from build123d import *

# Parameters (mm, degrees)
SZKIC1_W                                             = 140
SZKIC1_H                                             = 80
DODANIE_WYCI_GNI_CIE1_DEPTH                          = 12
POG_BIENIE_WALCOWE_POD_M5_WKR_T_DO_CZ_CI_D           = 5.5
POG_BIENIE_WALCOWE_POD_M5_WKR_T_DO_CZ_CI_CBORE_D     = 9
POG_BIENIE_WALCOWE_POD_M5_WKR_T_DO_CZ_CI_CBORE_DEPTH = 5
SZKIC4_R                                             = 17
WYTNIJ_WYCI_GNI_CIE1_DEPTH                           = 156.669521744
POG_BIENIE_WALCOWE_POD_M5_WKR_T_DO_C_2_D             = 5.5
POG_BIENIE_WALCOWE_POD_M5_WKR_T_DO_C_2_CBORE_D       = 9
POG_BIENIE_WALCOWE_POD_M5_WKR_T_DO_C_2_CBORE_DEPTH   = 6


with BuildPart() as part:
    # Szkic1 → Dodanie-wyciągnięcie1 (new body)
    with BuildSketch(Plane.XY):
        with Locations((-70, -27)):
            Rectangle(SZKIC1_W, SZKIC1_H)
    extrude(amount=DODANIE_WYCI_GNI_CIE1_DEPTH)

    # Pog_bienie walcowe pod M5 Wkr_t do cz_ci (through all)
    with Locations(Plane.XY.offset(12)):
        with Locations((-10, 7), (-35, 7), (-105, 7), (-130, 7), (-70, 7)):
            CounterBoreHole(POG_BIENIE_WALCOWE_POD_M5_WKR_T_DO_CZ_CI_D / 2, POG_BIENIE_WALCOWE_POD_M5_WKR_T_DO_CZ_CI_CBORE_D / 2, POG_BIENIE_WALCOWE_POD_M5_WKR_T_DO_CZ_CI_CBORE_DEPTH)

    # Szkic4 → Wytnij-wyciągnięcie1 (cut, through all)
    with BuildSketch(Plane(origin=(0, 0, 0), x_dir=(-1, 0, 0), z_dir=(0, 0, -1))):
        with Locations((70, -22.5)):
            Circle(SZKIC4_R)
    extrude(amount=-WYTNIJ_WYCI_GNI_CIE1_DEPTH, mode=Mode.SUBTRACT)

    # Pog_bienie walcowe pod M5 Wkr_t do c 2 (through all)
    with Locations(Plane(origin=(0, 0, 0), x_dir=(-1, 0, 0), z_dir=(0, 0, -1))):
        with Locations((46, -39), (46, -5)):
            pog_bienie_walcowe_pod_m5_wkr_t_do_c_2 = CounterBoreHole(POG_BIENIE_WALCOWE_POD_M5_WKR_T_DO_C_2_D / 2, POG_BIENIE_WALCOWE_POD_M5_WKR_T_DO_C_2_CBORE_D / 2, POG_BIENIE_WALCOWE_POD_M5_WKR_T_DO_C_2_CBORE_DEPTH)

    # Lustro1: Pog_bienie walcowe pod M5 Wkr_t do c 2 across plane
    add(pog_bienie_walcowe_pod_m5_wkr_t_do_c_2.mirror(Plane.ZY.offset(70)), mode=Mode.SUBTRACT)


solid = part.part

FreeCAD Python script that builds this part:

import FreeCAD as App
import Part
import Sketcher
from FreeCAD import Vector
Q = App.Units.Quantity


def add_polygon(sketch, points):
    """Adds a closed chain of lines whose ends are joined by coincident constraints."""
    first, n = sketch.GeometryCount, len(points)
    for a, b in zip(points, points[1:] + points[:1]):
        sketch.addGeometry(Part.LineSegment(App.Vector(*a, 0), App.Vector(*b, 0)), False)
    for i in range(n):
        sketch.addConstraint(Sketcher.Constraint("Coincident", first + i, 2, first + (i + 1) % n, 1))

doc = App.newDocument("Part")
body = doc.addObject("PartDesign::Body", "Body")

sketch1 = body.newObject("Sketcher::SketchObject", "Sketch")
sketch1.AttachmentSupport = (doc.getObject("XY_Plane"), [""])
sketch1.MapMode = "FlatFace"
add_polygon(sketch1, [(-140, 13), (-140, -67), (0, -67), (0, 13)])
sketch1.addConstraint(Sketcher.Constraint("Vertical", 0))
sketch1.addConstraint(Sketcher.Constraint("Horizontal", 1))
sketch1.addConstraint(Sketcher.Constraint("Vertical", 2))
sketch1.addConstraint(Sketcher.Constraint("Horizontal", 3))
sketch1.addConstraint(Sketcher.Constraint("PointOnObject", 1, 2, -2))
sketch1.addConstraint(Sketcher.Constraint("DistanceX", 1, 1, 1, 2, Q("140 mm")))
sketch1.addConstraint(Sketcher.Constraint("DistanceY", 0, 2, 0, 1, Q("80 mm")))
sketch1.addConstraint(Sketcher.Constraint("DistanceY", 0, 2, -1, 1, Q("67 mm")))
pad1 = body.newObject("PartDesign::Pad", "Pad")
pad1.Profile = sketch1
pad1.Length = 12

sketch2 = body.newObject("Sketcher::SketchObject", "Sketch001")
sketch2.AttachmentSupport = (doc.getObject("XY_Plane"), [""])
sketch2.MapMode = "FlatFace"
sketch2.AttachmentOffset = App.Placement(Vector(0, 0, 12), App.Rotation())
sketch2.addGeometry(Part.Circle(Vector(-10, 7, 0), Vector(0, 0, 1), 2.8), False)
sketch2.addGeometry(Part.Circle(Vector(-35, 7, 0), Vector(0, 0, 1), 2.8), False)
sketch2.addGeometry(Part.Circle(Vector(-105, 7, 0), Vector(0, 0, 1), 2.8), False)
sketch2.addGeometry(Part.Circle(Vector(-130, 7, 0), Vector(0, 0, 1), 2.8), False)
sketch2.addGeometry(Part.Circle(Vector(-70, 7, 0), Vector(0, 0, 1), 2.8), False)
sketch2.addConstraint(Sketcher.Constraint("Equal", 0, 1))
sketch2.addConstraint(Sketcher.Constraint("Equal", 1, 2))
sketch2.addConstraint(Sketcher.Constraint("Equal", 2, 3))
sketch2.addConstraint(Sketcher.Constraint("Equal", 3, 4))
sketch2.addConstraint(Sketcher.Constraint("Horizontal", 0, 3, 1, 3))
sketch2.addConstraint(Sketcher.Constraint("Horizontal", 1, 3, 2, 3))
sketch2.addConstraint(Sketcher.Constraint("Horizontal", 2, 3, 3, 3))
sketch2.addConstraint(Sketcher.Constraint("Horizontal", 3, 3, 4, 3))
sketch2.addConstraint(Sketcher.Constraint("Diameter", 0, Q("5.5 mm")))
sketch2.addConstraint(Sketcher.Constraint("DistanceX", 0, 3, -1, 1, Q("10 mm")))
sketch2.addConstraint(Sketcher.Constraint("DistanceY", -1, 1, 0, 3, Q("7 mm")))
sketch2.addConstraint(Sketcher.Constraint("DistanceX", 1, 3, -1, 1, Q("35 mm")))
sketch2.addConstraint(Sketcher.Constraint("DistanceX", 2, 3, -1, 1, Q("105 mm")))
sketch2.addConstraint(Sketcher.Constraint("DistanceX", 3, 3, -1, 1, Q("130 mm")))
sketch2.addConstraint(Sketcher.Constraint("DistanceX", 4, 3, -1, 1, Q("70 mm")))
doc.recompute()
hole = body.newObject("PartDesign::Hole", "Hole")
hole.Profile = sketch2
hole.ThreadType = "None"
hole.Diameter = 5.5
hole.DepthType = "ThroughAll"
hole.HoleCutType = "Counterbore"
hole.HoleCutDiameter = 9
hole.HoleCutDepth = 5

sketch3 = body.newObject("Sketcher::SketchObject", "Sketch002")
sketch3.AttachmentSupport = (doc.getObject("XY_Plane"), [""])
sketch3.MapMode = "FlatFace"
sketch3.addGeometry(Part.Circle(Vector(-70, -22, 0), Vector(0, 0, 1), 17), False)
sketch3.addConstraint(Sketcher.Constraint("Diameter", 0, Q("34 mm")))
sketch3.addConstraint(Sketcher.Constraint("DistanceX", 0, 3, -1, 1, Q("70 mm")))
sketch3.addConstraint(Sketcher.Constraint("DistanceY", 0, 3, -1, 1, Q("22.5 mm")))
pocket1 = body.newObject("PartDesign::Pocket", "Pocket")
pocket1.Profile = sketch3
pocket1.Type = "ThroughAll"
pocket1.Reversed = True

sketch4 = body.newObject("Sketcher::SketchObject", "Sketch003")
sketch4.AttachmentSupport = (doc.getObject("XY_Plane"), [""])
sketch4.MapMode = "FlatFace"
sketch4.addGeometry(Part.Circle(Vector(-46, -39, 0), Vector(0, 0, 1), 2.8), False)
sketch4.addGeometry(Part.Circle(Vector(-46, -5, 0), Vector(0, 0, 1), 2.8), False)
sketch4.addConstraint(Sketcher.Constraint("Equal", 0, 1))
sketch4.addConstraint(Sketcher.Constraint("Vertical", 0, 3, 1, 3))
sketch4.addConstraint(Sketcher.Constraint("Diameter", 0, Q("5.5 mm")))
sketch4.addConstraint(Sketcher.Constraint("DistanceX", 0, 3, -1, 1, Q("46 mm")))
sketch4.addConstraint(Sketcher.Constraint("DistanceY", 0, 3, -1, 1, Q("39 mm")))
sketch4.addConstraint(Sketcher.Constraint("DistanceY", 1, 3, -1, 1, Q("5 mm")))
doc.recompute()
hole2 = body.newObject("PartDesign::Hole", "Hole001")
hole2.Profile = sketch4
hole2.ThreadType = "None"
hole2.Diameter = 5.5
hole2.DepthType = "ThroughAll"
hole2.HoleCutType = "Counterbore"
hole2.HoleCutDiameter = 9
hole2.HoleCutDepth = 6
hole2.Reversed = True
doc.recompute()

datumplane = body.newObject("PartDesign::Plane", "DatumPlane")
datumplane.AttachmentSupport = (doc.getObject("YZ_Plane"), [""])
datumplane.MapMode = "FlatFace"
datumplane.AttachmentOffset = App.Placement(Vector(0, 0, -70), App.Rotation())
mirrored = body.newObject("PartDesign::Mirrored", "Mirrored")
mirrored.Originals = [hole2]
mirrored.MirrorPlane = (datumplane, [""])
body.Tip = mirrored

doc.recompute()
